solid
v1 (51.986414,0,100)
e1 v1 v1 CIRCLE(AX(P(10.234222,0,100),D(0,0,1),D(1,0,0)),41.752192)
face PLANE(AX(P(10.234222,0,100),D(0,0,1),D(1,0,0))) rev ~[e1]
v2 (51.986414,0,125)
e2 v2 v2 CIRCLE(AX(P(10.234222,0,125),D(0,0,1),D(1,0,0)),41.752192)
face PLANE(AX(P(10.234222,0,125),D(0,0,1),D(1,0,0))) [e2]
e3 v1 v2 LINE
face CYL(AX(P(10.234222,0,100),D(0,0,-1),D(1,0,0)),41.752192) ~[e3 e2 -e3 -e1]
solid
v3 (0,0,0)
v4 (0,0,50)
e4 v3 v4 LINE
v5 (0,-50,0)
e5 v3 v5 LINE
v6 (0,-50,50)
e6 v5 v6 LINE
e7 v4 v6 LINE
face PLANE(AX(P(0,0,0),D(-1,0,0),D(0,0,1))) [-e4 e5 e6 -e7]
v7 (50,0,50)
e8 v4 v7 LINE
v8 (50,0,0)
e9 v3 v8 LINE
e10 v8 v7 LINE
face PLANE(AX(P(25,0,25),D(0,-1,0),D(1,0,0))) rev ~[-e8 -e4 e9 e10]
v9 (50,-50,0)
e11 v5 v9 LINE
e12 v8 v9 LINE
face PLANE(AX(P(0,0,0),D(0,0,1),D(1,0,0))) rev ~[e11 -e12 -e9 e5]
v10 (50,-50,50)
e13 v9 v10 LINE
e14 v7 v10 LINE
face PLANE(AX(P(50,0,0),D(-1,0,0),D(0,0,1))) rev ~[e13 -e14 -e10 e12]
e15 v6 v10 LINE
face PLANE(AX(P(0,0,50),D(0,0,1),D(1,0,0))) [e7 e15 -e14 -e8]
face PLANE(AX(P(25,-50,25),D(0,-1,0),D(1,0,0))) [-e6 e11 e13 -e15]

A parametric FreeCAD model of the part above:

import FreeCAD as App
import Part
import Sketcher
from FreeCAD import Vector

doc = App.newDocument("Part")
body = doc.addObject("PartDesign::Body", "Body")

# Sketch on XZ plane
sketch1 = body.newObject("Sketcher::SketchObject", "Sketch")
sketch1.AttachmentSupport = (doc.getObject("XZ_Plane"), [""])
sketch1.MapMode = "FlatFace"
sketch1.addGeometry([
    Part.LineSegment(Vector(0, 50, 0), Vector(0, 0, 0)),
    Part.LineSegment(Vector(0, 0, 0), Vector(50, 0, 0)),
    Part.LineSegment(Vector(50, 0, 0), Vector(50, 50, 0)),
    Part.LineSegment(Vector(50, 50, 0), Vector(0, 50, 0)),
], False)
sketch1.addConstraint([
    Sketcher.Constraint("Coincident", 0, 2, 1, 1),
    Sketcher.Constraint("Coincident", 1, 2, 2, 1),
    Sketcher.Constraint("Coincident", 2, 2, 3, 1),
    Sketcher.Constraint("Coincident", 3, 2, 0, 1),
    Sketcher.Constraint("Vertical", 0),
    Sketcher.Constraint("Horizontal", 1),
    Sketcher.Constraint("Vertical", 2),
    Sketcher.Constraint("Horizontal", 3),
    Sketcher.Constraint("Coincident", 0, 2, -1, 1),
    Sketcher.Constraint("Equal", 3, 0),
    Sketcher.Constraint("DistanceX", 1, 1, 1, 2, 50.0),
])
pad1 = body.newObject("PartDesign::Pad", "Pad")
pad1.Profile = sketch1
pad1.Length = 50
body2 = doc.addObject("PartDesign::Body", "Body001")

# Sketch on XY plane
sketch2 = body2.newObject("Sketcher::SketchObject", "Sketch001")
sketch2.AttachmentSupport = (doc.getObject("XY_Plane001"), [""])
sketch2.MapMode = "FlatFace"
sketch2.AttachmentOffset = App.Placement(Vector(0, 0, 100), App.Rotation())
sketch2.addGeometry(Part.Circle(Vector(10, 0, 0), Vector(0, 0, 1), 42), False)
sketch2.addConstraint([
    Sketcher.Constraint("PointOnObject", 0, 3, -1),
    Sketcher.Constraint("Diameter", 0, 83.504384),
    Sketcher.Constraint("DistanceX", -1, 1, 0, 3, 10.234222),
])
pad2 = body2.newObject("PartDesign::Pad", "Pad001")
pad2.Profile = sketch2
pad2.Length = 25

doc.recompute()
